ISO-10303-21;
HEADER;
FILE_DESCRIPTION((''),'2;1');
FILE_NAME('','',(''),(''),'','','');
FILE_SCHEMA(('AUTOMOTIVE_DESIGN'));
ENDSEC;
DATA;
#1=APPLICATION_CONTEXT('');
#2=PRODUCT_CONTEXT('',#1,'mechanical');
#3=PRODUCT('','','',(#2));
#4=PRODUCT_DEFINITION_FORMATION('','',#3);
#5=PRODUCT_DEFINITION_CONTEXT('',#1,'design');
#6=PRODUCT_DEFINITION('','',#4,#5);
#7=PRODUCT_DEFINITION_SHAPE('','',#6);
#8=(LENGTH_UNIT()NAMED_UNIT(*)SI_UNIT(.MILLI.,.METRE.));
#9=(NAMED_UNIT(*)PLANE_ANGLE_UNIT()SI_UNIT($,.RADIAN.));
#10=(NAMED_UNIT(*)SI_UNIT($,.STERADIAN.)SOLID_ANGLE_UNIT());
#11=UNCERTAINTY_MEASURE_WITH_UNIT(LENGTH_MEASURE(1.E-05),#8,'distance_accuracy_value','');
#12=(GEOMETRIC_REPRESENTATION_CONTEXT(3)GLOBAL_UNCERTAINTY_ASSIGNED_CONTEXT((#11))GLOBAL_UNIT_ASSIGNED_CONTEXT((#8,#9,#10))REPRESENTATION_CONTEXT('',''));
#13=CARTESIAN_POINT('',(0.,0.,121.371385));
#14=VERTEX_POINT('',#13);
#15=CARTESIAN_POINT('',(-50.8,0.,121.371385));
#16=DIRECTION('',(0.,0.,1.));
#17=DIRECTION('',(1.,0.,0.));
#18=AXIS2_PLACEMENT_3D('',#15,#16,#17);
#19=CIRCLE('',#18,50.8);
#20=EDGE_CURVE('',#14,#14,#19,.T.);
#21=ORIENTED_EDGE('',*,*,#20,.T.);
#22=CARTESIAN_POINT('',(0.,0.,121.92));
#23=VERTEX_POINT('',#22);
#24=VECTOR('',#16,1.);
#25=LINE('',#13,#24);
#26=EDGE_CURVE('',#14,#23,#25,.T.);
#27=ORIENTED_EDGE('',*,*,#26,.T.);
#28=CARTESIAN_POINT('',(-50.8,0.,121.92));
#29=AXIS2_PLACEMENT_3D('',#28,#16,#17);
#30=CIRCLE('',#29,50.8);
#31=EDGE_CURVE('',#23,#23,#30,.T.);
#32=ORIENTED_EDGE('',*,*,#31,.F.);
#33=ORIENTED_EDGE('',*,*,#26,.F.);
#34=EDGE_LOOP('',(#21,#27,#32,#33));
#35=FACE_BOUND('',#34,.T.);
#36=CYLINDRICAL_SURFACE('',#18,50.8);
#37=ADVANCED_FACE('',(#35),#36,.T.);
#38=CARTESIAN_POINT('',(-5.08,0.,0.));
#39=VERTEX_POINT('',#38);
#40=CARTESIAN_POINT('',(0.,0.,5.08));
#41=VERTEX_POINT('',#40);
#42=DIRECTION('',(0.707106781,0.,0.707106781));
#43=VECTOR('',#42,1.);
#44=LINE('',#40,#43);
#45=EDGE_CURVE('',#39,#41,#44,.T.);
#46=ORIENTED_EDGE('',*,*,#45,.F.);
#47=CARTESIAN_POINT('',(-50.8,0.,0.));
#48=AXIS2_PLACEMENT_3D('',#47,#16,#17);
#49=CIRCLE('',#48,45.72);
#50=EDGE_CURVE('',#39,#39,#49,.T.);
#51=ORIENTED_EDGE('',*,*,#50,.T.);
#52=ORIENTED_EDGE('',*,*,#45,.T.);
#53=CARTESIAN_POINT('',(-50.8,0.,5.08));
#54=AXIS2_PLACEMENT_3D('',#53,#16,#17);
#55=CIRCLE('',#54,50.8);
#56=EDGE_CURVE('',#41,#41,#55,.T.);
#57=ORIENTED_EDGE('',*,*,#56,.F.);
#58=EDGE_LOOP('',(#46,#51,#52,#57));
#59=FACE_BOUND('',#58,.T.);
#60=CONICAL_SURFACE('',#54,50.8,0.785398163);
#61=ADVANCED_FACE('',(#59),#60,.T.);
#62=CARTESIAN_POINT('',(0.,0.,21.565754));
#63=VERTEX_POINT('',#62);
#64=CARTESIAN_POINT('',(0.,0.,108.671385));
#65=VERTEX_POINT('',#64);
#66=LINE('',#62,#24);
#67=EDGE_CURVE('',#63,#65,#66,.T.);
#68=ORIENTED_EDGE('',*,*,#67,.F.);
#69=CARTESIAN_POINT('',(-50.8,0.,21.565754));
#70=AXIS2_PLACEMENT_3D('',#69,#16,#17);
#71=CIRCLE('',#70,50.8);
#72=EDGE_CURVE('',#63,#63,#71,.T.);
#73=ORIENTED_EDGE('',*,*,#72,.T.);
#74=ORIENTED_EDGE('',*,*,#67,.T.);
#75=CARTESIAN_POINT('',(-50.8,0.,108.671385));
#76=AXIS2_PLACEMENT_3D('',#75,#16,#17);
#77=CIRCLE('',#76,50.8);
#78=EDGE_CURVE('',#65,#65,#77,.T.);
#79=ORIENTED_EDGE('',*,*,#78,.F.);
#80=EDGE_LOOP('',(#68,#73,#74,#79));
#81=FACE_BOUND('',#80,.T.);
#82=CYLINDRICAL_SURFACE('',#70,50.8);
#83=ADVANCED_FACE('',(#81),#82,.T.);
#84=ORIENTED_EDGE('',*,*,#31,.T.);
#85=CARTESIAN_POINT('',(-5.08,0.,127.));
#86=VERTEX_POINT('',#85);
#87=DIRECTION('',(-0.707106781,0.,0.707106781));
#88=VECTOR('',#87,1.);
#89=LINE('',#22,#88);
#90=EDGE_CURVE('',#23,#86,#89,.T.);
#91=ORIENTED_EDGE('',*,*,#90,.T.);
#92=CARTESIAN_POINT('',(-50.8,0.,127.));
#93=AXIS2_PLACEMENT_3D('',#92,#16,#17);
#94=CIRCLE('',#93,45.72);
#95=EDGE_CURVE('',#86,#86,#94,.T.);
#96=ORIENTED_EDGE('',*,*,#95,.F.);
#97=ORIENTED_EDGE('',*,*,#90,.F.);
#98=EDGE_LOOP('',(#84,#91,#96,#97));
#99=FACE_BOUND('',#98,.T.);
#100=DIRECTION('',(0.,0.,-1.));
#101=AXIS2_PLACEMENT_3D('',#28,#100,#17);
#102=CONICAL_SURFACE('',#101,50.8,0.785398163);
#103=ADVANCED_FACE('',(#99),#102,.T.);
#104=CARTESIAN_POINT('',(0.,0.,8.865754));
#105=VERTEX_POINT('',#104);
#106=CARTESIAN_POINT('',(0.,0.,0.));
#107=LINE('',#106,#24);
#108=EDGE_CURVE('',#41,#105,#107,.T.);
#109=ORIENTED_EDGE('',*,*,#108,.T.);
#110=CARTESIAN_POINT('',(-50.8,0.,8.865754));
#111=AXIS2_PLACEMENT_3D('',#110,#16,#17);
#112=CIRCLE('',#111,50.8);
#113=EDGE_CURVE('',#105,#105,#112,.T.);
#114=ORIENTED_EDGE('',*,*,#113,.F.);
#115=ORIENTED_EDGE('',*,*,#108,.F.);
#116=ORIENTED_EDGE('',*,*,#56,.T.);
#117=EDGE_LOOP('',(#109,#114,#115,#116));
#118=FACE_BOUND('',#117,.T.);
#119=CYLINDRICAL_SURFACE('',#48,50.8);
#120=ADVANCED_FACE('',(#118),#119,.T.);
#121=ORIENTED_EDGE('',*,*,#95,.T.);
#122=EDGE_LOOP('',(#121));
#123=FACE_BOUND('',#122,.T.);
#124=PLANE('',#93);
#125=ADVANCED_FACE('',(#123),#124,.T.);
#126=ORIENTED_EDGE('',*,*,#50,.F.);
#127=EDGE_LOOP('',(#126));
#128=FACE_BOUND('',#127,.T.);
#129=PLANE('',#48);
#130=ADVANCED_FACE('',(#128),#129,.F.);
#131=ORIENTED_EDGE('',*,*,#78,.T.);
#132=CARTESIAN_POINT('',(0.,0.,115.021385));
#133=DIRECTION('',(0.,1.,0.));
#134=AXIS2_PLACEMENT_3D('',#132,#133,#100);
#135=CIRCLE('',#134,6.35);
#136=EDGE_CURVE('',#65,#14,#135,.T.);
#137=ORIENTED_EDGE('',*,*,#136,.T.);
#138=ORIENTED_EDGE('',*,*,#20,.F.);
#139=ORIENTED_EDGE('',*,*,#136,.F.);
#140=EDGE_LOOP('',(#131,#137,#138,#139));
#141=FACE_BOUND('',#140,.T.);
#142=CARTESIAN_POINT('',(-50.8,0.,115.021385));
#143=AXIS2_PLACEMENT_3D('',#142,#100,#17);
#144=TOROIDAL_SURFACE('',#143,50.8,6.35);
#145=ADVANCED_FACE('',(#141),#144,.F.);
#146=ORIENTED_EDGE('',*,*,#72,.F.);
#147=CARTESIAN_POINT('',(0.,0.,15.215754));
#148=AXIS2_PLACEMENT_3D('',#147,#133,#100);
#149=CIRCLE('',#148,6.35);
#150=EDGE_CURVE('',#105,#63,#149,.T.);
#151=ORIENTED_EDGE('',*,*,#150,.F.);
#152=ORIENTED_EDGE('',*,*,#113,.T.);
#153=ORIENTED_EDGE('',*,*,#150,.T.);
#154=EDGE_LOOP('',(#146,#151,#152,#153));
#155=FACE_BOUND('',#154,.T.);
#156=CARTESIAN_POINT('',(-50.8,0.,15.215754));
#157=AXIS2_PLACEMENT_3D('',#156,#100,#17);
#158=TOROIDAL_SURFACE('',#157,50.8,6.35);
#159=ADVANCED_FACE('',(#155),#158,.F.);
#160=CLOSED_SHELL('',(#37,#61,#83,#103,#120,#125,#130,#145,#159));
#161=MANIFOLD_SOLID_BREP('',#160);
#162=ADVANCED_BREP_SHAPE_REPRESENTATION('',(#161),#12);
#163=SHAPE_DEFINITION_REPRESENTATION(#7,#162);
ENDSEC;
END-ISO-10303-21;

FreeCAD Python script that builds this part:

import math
import FreeCAD as App
import Part
import Sketcher

V = App.Vector
Q = App.Units.Quantity


def edges_at(feature, points):
    """Names of the edges that pass closest to the given points."""
    edges = feature.Shape.Edges
    near = lambda p: min(range(len(edges)), key=lambda i: edges[i].distToShape(Part.Vertex(*p))[0])
    return sorted({f"Edge{near(p) + 1}" for p in points})

doc = App.newDocument("Part")
body = doc.addObject("PartDesign::Body", "Body")

# Sketch on XZ plane
sketch1 = body.newObject("Sketcher::SketchObject", "Sketch")
sketch1.AttachmentSupport = (doc.getObject("XZ_Plane"), [""])
sketch1.MapMode = "FlatFace"
sketch1.addGeometry([
    Part.LineSegment(V(-51, 0, 0), V(0, 0, 0)),  # 0
    Part.LineSegment(V(0, 0, 0), V(0, 9, 0)),  # 1
    Part.ArcOfCircle(Part.Circle(V(0, 15, 0), V(0, 0, 1), 6), math.radians(90), math.radians(270)),  # 2
    Part.LineSegment(V(0, 22, 0), V(0, 109, 0)),  # 3
    Part.ArcOfCircle(Part.Circle(V(0, 115, 0), V(0, 0, 1), 6), math.radians(90), math.radians(270)),  # 4
    Part.LineSegment(V(0, 121, 0), V(0, 127, 0)),  # 5
    Part.LineSegment(V(0, 127, 0), V(-51, 127, 0)),  # 6
    Part.LineSegment(V(-51, 127, 0), V(-51, 0, 0)),  # 7
], False)
sketch1.addGeometry(Part.LineSegment(V(-51, 0, 0), V(-51, 127, 0)), True)  # axis
sketch1.addConstraint([
    Sketcher.Constraint("Coincident", 0, 2, 1, 1),
    Sketcher.Constraint("Coincident", 1, 2, 2, 2),
    Sketcher.Constraint("Coincident", 2, 1, 3, 1),
    Sketcher.Constraint("Coincident", 3, 2, 4, 2),
    Sketcher.Constraint("Coincident", 4, 1, 5, 1),
    Sketcher.Constraint("Coincident", 5, 2, 6, 1),
    Sketcher.Constraint("Coincident", 6, 2, 7, 1),
    Sketcher.Constraint("Coincident", 7, 2, 0, 1),
    Sketcher.Constraint("Horizontal", 0),
    Sketcher.Constraint("Vertical", 1),
    Sketcher.Constraint("Vertical", 3),
    Sketcher.Constraint("Vertical", 5),
    Sketcher.Constraint("Horizontal", 6),
    Sketcher.Constraint("Vertical", 7),
    Sketcher.Constraint("Vertical", 8),
    Sketcher.Constraint("Coincident", 0, 2, -1, 1),
    Sketcher.Constraint("Coincident", 8, 1, 7, 2),
    Sketcher.Constraint("Equal", 2, 4),
    Sketcher.Constraint("PointOnObject", 2, 3, -2),
    Sketcher.Constraint("PointOnObject", 4, 3, -2),
    Sketcher.Constraint("PointOnObject", 2, 1, -2),
    Sketcher.Constraint("PointOnObject", 4, 1, -2),
    Sketcher.Constraint("Horizontal", 5, 2, 8, 2),
    Sketcher.Constraint("DistanceX", 0, 1, 0, 2, Q("2 in")),
    Sketcher.Constraint("DistanceY", 7, 2, 7, 1, Q("5 in")),
    Sketcher.Constraint("Radius", 2, Q("0.25 in")),
    Sketcher.Constraint("DistanceY", 3, 1, 3, 2, 87.105632),
    Sketcher.Constraint("DistanceY", 1, 1, 1, 2, 8.865754),
])
revolution = body.newObject("PartDesign::Revolution", "Revolution")
revolution.Profile = sketch1
revolution.ReferenceAxis = (sketch1, ["Axis0"])
revolution.Angle = 360
doc.recompute()

chamfer = body.newObject("PartDesign::Chamfer", "Chamfer")
chamfer.Base = (revolution, edges_at(revolution, [(-101.6, 0, 127), (-101.6, 0, 0)]))
chamfer.Size = Q("0.2 in")

doc.recompute()
